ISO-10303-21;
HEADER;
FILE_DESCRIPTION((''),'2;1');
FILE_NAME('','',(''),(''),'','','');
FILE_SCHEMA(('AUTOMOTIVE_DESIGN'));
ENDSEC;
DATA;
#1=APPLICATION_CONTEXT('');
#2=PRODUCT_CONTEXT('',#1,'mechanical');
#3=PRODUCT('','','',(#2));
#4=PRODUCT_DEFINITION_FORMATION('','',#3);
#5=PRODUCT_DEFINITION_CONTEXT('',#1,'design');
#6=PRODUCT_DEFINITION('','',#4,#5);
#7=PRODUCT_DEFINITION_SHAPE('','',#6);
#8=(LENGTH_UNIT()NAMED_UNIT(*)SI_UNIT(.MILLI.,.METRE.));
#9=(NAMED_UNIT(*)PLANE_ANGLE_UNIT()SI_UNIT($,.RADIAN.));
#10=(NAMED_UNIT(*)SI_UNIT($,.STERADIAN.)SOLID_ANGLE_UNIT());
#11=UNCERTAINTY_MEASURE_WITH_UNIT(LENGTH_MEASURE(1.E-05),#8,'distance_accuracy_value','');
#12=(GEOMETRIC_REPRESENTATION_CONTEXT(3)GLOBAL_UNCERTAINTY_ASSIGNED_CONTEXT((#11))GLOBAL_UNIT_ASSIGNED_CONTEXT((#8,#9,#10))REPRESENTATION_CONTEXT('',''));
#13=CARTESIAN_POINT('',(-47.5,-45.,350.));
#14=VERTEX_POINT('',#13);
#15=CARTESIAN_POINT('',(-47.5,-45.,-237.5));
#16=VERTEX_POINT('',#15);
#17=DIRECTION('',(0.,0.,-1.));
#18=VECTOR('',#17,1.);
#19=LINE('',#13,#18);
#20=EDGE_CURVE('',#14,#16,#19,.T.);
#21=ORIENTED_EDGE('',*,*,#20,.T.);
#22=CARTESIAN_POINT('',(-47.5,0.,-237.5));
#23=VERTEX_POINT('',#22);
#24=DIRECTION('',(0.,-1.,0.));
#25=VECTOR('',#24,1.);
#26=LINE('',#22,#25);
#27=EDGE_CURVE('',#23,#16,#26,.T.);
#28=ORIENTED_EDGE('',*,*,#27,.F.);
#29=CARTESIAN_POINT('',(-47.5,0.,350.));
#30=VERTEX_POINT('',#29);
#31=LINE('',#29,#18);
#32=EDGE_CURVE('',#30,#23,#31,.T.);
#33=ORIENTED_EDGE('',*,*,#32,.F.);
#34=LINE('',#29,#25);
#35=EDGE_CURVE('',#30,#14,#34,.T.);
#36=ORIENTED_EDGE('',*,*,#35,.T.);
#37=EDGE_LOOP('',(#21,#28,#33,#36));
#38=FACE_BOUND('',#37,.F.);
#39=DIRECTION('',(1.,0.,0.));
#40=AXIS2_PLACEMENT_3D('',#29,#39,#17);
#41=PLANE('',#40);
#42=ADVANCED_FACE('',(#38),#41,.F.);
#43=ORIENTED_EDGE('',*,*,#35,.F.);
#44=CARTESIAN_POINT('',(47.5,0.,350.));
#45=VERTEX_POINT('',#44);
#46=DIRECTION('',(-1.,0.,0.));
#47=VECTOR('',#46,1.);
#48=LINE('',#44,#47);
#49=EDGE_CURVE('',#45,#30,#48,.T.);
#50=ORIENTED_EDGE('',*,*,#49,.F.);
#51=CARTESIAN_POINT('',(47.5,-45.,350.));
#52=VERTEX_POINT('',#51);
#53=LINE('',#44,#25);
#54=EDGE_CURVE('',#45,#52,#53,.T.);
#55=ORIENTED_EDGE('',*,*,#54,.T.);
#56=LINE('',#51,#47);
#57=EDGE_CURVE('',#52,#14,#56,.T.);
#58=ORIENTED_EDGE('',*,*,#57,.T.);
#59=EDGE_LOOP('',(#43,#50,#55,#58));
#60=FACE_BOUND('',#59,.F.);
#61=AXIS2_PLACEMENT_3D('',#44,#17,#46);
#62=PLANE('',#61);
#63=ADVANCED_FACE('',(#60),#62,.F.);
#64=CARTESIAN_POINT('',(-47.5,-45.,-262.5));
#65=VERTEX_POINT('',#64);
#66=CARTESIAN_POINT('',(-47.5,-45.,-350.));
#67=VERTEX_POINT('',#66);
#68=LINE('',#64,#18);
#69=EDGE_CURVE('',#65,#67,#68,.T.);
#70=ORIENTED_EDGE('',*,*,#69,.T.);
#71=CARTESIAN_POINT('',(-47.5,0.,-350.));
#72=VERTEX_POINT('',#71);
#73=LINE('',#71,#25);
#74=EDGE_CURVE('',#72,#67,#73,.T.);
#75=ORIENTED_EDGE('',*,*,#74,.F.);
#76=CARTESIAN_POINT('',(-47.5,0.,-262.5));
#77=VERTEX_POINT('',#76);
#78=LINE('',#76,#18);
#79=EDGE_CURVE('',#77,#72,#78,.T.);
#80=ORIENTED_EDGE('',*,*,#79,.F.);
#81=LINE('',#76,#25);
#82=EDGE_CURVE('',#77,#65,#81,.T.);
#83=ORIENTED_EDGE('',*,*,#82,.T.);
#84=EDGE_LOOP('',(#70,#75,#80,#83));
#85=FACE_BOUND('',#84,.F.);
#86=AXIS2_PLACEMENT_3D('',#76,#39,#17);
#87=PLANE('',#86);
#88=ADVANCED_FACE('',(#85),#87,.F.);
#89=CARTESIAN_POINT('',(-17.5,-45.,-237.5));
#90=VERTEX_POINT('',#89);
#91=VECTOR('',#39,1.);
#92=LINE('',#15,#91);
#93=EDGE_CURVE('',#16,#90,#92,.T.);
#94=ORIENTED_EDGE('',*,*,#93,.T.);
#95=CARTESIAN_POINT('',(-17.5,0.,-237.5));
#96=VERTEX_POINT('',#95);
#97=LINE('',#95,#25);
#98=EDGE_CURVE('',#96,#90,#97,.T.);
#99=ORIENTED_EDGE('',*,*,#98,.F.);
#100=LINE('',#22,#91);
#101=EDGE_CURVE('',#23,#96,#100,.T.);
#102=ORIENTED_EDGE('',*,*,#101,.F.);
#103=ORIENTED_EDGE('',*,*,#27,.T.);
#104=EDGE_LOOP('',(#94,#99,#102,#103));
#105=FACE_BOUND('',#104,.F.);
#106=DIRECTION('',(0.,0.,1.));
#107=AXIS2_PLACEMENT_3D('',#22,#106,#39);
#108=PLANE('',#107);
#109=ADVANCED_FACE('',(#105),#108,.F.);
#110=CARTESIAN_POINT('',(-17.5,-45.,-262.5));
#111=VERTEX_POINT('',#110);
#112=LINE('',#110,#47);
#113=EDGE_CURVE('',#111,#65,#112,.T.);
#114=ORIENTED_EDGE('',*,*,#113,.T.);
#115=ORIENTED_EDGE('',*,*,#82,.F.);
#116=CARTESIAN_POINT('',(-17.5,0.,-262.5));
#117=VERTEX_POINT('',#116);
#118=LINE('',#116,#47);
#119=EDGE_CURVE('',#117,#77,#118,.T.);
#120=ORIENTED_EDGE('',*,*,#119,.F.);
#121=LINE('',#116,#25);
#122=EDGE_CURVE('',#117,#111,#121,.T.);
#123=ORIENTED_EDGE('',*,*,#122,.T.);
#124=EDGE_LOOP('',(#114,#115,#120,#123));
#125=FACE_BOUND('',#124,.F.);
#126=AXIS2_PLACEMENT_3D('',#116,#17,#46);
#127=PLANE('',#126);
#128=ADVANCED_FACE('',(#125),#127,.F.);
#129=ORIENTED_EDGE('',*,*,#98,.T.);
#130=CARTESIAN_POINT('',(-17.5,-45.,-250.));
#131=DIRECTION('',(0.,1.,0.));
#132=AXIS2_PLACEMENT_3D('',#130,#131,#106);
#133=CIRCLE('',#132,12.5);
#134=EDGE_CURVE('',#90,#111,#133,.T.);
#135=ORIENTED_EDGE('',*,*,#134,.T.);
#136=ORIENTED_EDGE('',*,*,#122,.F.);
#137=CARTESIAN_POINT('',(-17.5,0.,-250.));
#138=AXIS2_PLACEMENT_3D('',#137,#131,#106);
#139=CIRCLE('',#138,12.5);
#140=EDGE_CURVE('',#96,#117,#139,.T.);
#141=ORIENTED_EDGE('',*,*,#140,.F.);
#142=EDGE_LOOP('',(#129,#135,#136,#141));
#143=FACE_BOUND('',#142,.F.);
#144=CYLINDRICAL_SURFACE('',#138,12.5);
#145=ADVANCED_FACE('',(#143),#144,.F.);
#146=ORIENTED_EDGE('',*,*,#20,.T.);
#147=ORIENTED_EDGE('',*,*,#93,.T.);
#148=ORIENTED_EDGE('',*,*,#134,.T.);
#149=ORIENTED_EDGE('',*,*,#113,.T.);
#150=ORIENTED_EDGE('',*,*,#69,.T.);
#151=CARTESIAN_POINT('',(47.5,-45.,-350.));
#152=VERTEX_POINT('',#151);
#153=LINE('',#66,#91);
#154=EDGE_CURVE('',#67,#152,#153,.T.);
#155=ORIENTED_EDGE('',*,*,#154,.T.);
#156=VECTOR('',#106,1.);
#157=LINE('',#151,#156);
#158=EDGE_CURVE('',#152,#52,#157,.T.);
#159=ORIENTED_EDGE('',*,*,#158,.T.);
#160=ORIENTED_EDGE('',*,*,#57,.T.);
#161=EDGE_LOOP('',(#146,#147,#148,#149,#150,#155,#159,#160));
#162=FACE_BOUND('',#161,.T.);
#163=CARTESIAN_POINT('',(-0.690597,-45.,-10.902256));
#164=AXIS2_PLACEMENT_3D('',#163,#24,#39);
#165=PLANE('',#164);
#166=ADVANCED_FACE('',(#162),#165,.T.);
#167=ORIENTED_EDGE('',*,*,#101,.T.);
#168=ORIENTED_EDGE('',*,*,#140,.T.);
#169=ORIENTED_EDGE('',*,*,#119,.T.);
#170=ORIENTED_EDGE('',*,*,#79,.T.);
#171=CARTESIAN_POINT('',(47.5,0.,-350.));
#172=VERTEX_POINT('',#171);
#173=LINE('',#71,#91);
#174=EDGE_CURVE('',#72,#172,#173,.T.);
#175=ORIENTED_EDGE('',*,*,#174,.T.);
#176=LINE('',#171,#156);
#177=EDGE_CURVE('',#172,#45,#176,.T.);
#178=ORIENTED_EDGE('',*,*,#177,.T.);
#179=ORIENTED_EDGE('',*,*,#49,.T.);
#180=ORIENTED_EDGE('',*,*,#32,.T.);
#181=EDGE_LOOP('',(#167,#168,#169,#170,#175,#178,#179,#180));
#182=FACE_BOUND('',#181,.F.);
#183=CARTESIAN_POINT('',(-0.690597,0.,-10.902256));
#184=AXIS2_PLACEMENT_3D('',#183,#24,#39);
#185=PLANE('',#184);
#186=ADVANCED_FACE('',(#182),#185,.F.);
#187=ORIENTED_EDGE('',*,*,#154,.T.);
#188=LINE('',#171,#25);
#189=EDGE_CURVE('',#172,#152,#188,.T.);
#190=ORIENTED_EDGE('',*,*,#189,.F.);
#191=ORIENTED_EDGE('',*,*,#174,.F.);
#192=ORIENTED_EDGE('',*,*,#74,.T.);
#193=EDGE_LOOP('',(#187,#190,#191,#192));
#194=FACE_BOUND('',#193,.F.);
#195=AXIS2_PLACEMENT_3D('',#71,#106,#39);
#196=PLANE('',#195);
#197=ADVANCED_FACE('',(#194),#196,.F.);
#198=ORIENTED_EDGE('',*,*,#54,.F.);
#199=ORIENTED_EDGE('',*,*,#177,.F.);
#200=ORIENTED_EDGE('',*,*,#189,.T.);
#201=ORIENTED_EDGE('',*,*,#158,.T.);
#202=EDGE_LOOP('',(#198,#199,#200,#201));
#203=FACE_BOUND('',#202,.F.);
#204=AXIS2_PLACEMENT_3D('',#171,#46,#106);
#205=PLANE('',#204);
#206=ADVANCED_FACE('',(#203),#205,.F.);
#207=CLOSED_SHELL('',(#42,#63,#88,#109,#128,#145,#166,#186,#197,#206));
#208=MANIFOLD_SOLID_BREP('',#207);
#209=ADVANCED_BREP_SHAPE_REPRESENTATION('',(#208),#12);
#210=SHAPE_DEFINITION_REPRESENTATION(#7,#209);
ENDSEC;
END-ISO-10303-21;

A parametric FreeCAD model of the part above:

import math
import FreeCAD as App
import Part
import Sketcher
from FreeCAD import Vector

doc = App.newDocument("Part")
body = doc.addObject("PartDesign::Body", "Body")

# Sketch on XZ plane
sketch1 = body.newObject("Sketcher::SketchObject", "Sketch")
sketch1.AttachmentSupport = (doc.getObject("XZ_Plane"), [""])
sketch1.MapMode = "FlatFace"
sketch1.addGeometry([
    Part.LineSegment(Vector(48, 350, 0), Vector(-48, 350, 0)),  # 0
    Part.LineSegment(Vector(-48, 350, 0), Vector(-48, -238, 0)),  # 1
    Part.LineSegment(Vector(-48, -238, 0), Vector(-18, -238, 0)),  # 2
    Part.ArcOfCircle(Part.Circle(Vector(-18, -250, 0), Vector(0, 0, 1), 12), math.radians(-90), math.radians(90)),  # 3
    Part.LineSegment(Vector(-18, -262, 0), Vector(-48, -262, 0)),  # 4
    Part.LineSegment(Vector(-48, -262, 0), Vector(-48, -350, 0)),  # 5
    Part.LineSegment(Vector(-48, -350, 0), Vector(48, -350, 0)),  # 6
    Part.LineSegment(Vector(48, -350, 0), Vector(48, 350, 0)),  # 7
], False)
sketch1.addConstraint([
    Sketcher.Constraint("Coincident", 0, 2, 1, 1),
    Sketcher.Constraint("Coincident", 1, 2, 2, 1),
    Sketcher.Constraint("Tangent", 2, 2, 3, 2),
    Sketcher.Constraint("Tangent", 3, 1, 4, 1),
    Sketcher.Constraint("Coincident", 4, 2, 5, 1),
    Sketcher.Constraint("Coincident", 5, 2, 6, 1),
    Sketcher.Constraint("Coincident", 6, 2, 7, 1),
    Sketcher.Constraint("Coincident", 7, 2, 0, 1),
    Sketcher.Constraint("Horizontal", 0),
    Sketcher.Constraint("Vertical", 1),
    Sketcher.Constraint("Horizontal", 2),
    Sketcher.Constraint("Horizontal", 4),
    Sketcher.Constraint("Vertical", 5),
    Sketcher.Constraint("Horizontal", 6),
    Sketcher.Constraint("Vertical", 7),
    Sketcher.Constraint("Symmetric", 0, 2, 6, 2, -1, 1),
    Sketcher.Constraint("Vertical", 1, 2, 4, 2),
    Sketcher.Constraint("Radius", 3, 12.5),
    Sketcher.Constraint("DistanceX", 0, 2, 0, 1, 95.0),
    Sketcher.Constraint("DistanceX", 2, 1, 2, 2, 30.0),
    Sketcher.Constraint("DistanceY", 7, 1, 7, 2, 700.0),
    Sketcher.Constraint("DistanceY", 1, 2, 1, 1, 587.5),
])
pad1 = body.newObject("PartDesign::Pad", "Pad")
pad1.Profile = sketch1
pad1.Length = 45

doc.recompute()
